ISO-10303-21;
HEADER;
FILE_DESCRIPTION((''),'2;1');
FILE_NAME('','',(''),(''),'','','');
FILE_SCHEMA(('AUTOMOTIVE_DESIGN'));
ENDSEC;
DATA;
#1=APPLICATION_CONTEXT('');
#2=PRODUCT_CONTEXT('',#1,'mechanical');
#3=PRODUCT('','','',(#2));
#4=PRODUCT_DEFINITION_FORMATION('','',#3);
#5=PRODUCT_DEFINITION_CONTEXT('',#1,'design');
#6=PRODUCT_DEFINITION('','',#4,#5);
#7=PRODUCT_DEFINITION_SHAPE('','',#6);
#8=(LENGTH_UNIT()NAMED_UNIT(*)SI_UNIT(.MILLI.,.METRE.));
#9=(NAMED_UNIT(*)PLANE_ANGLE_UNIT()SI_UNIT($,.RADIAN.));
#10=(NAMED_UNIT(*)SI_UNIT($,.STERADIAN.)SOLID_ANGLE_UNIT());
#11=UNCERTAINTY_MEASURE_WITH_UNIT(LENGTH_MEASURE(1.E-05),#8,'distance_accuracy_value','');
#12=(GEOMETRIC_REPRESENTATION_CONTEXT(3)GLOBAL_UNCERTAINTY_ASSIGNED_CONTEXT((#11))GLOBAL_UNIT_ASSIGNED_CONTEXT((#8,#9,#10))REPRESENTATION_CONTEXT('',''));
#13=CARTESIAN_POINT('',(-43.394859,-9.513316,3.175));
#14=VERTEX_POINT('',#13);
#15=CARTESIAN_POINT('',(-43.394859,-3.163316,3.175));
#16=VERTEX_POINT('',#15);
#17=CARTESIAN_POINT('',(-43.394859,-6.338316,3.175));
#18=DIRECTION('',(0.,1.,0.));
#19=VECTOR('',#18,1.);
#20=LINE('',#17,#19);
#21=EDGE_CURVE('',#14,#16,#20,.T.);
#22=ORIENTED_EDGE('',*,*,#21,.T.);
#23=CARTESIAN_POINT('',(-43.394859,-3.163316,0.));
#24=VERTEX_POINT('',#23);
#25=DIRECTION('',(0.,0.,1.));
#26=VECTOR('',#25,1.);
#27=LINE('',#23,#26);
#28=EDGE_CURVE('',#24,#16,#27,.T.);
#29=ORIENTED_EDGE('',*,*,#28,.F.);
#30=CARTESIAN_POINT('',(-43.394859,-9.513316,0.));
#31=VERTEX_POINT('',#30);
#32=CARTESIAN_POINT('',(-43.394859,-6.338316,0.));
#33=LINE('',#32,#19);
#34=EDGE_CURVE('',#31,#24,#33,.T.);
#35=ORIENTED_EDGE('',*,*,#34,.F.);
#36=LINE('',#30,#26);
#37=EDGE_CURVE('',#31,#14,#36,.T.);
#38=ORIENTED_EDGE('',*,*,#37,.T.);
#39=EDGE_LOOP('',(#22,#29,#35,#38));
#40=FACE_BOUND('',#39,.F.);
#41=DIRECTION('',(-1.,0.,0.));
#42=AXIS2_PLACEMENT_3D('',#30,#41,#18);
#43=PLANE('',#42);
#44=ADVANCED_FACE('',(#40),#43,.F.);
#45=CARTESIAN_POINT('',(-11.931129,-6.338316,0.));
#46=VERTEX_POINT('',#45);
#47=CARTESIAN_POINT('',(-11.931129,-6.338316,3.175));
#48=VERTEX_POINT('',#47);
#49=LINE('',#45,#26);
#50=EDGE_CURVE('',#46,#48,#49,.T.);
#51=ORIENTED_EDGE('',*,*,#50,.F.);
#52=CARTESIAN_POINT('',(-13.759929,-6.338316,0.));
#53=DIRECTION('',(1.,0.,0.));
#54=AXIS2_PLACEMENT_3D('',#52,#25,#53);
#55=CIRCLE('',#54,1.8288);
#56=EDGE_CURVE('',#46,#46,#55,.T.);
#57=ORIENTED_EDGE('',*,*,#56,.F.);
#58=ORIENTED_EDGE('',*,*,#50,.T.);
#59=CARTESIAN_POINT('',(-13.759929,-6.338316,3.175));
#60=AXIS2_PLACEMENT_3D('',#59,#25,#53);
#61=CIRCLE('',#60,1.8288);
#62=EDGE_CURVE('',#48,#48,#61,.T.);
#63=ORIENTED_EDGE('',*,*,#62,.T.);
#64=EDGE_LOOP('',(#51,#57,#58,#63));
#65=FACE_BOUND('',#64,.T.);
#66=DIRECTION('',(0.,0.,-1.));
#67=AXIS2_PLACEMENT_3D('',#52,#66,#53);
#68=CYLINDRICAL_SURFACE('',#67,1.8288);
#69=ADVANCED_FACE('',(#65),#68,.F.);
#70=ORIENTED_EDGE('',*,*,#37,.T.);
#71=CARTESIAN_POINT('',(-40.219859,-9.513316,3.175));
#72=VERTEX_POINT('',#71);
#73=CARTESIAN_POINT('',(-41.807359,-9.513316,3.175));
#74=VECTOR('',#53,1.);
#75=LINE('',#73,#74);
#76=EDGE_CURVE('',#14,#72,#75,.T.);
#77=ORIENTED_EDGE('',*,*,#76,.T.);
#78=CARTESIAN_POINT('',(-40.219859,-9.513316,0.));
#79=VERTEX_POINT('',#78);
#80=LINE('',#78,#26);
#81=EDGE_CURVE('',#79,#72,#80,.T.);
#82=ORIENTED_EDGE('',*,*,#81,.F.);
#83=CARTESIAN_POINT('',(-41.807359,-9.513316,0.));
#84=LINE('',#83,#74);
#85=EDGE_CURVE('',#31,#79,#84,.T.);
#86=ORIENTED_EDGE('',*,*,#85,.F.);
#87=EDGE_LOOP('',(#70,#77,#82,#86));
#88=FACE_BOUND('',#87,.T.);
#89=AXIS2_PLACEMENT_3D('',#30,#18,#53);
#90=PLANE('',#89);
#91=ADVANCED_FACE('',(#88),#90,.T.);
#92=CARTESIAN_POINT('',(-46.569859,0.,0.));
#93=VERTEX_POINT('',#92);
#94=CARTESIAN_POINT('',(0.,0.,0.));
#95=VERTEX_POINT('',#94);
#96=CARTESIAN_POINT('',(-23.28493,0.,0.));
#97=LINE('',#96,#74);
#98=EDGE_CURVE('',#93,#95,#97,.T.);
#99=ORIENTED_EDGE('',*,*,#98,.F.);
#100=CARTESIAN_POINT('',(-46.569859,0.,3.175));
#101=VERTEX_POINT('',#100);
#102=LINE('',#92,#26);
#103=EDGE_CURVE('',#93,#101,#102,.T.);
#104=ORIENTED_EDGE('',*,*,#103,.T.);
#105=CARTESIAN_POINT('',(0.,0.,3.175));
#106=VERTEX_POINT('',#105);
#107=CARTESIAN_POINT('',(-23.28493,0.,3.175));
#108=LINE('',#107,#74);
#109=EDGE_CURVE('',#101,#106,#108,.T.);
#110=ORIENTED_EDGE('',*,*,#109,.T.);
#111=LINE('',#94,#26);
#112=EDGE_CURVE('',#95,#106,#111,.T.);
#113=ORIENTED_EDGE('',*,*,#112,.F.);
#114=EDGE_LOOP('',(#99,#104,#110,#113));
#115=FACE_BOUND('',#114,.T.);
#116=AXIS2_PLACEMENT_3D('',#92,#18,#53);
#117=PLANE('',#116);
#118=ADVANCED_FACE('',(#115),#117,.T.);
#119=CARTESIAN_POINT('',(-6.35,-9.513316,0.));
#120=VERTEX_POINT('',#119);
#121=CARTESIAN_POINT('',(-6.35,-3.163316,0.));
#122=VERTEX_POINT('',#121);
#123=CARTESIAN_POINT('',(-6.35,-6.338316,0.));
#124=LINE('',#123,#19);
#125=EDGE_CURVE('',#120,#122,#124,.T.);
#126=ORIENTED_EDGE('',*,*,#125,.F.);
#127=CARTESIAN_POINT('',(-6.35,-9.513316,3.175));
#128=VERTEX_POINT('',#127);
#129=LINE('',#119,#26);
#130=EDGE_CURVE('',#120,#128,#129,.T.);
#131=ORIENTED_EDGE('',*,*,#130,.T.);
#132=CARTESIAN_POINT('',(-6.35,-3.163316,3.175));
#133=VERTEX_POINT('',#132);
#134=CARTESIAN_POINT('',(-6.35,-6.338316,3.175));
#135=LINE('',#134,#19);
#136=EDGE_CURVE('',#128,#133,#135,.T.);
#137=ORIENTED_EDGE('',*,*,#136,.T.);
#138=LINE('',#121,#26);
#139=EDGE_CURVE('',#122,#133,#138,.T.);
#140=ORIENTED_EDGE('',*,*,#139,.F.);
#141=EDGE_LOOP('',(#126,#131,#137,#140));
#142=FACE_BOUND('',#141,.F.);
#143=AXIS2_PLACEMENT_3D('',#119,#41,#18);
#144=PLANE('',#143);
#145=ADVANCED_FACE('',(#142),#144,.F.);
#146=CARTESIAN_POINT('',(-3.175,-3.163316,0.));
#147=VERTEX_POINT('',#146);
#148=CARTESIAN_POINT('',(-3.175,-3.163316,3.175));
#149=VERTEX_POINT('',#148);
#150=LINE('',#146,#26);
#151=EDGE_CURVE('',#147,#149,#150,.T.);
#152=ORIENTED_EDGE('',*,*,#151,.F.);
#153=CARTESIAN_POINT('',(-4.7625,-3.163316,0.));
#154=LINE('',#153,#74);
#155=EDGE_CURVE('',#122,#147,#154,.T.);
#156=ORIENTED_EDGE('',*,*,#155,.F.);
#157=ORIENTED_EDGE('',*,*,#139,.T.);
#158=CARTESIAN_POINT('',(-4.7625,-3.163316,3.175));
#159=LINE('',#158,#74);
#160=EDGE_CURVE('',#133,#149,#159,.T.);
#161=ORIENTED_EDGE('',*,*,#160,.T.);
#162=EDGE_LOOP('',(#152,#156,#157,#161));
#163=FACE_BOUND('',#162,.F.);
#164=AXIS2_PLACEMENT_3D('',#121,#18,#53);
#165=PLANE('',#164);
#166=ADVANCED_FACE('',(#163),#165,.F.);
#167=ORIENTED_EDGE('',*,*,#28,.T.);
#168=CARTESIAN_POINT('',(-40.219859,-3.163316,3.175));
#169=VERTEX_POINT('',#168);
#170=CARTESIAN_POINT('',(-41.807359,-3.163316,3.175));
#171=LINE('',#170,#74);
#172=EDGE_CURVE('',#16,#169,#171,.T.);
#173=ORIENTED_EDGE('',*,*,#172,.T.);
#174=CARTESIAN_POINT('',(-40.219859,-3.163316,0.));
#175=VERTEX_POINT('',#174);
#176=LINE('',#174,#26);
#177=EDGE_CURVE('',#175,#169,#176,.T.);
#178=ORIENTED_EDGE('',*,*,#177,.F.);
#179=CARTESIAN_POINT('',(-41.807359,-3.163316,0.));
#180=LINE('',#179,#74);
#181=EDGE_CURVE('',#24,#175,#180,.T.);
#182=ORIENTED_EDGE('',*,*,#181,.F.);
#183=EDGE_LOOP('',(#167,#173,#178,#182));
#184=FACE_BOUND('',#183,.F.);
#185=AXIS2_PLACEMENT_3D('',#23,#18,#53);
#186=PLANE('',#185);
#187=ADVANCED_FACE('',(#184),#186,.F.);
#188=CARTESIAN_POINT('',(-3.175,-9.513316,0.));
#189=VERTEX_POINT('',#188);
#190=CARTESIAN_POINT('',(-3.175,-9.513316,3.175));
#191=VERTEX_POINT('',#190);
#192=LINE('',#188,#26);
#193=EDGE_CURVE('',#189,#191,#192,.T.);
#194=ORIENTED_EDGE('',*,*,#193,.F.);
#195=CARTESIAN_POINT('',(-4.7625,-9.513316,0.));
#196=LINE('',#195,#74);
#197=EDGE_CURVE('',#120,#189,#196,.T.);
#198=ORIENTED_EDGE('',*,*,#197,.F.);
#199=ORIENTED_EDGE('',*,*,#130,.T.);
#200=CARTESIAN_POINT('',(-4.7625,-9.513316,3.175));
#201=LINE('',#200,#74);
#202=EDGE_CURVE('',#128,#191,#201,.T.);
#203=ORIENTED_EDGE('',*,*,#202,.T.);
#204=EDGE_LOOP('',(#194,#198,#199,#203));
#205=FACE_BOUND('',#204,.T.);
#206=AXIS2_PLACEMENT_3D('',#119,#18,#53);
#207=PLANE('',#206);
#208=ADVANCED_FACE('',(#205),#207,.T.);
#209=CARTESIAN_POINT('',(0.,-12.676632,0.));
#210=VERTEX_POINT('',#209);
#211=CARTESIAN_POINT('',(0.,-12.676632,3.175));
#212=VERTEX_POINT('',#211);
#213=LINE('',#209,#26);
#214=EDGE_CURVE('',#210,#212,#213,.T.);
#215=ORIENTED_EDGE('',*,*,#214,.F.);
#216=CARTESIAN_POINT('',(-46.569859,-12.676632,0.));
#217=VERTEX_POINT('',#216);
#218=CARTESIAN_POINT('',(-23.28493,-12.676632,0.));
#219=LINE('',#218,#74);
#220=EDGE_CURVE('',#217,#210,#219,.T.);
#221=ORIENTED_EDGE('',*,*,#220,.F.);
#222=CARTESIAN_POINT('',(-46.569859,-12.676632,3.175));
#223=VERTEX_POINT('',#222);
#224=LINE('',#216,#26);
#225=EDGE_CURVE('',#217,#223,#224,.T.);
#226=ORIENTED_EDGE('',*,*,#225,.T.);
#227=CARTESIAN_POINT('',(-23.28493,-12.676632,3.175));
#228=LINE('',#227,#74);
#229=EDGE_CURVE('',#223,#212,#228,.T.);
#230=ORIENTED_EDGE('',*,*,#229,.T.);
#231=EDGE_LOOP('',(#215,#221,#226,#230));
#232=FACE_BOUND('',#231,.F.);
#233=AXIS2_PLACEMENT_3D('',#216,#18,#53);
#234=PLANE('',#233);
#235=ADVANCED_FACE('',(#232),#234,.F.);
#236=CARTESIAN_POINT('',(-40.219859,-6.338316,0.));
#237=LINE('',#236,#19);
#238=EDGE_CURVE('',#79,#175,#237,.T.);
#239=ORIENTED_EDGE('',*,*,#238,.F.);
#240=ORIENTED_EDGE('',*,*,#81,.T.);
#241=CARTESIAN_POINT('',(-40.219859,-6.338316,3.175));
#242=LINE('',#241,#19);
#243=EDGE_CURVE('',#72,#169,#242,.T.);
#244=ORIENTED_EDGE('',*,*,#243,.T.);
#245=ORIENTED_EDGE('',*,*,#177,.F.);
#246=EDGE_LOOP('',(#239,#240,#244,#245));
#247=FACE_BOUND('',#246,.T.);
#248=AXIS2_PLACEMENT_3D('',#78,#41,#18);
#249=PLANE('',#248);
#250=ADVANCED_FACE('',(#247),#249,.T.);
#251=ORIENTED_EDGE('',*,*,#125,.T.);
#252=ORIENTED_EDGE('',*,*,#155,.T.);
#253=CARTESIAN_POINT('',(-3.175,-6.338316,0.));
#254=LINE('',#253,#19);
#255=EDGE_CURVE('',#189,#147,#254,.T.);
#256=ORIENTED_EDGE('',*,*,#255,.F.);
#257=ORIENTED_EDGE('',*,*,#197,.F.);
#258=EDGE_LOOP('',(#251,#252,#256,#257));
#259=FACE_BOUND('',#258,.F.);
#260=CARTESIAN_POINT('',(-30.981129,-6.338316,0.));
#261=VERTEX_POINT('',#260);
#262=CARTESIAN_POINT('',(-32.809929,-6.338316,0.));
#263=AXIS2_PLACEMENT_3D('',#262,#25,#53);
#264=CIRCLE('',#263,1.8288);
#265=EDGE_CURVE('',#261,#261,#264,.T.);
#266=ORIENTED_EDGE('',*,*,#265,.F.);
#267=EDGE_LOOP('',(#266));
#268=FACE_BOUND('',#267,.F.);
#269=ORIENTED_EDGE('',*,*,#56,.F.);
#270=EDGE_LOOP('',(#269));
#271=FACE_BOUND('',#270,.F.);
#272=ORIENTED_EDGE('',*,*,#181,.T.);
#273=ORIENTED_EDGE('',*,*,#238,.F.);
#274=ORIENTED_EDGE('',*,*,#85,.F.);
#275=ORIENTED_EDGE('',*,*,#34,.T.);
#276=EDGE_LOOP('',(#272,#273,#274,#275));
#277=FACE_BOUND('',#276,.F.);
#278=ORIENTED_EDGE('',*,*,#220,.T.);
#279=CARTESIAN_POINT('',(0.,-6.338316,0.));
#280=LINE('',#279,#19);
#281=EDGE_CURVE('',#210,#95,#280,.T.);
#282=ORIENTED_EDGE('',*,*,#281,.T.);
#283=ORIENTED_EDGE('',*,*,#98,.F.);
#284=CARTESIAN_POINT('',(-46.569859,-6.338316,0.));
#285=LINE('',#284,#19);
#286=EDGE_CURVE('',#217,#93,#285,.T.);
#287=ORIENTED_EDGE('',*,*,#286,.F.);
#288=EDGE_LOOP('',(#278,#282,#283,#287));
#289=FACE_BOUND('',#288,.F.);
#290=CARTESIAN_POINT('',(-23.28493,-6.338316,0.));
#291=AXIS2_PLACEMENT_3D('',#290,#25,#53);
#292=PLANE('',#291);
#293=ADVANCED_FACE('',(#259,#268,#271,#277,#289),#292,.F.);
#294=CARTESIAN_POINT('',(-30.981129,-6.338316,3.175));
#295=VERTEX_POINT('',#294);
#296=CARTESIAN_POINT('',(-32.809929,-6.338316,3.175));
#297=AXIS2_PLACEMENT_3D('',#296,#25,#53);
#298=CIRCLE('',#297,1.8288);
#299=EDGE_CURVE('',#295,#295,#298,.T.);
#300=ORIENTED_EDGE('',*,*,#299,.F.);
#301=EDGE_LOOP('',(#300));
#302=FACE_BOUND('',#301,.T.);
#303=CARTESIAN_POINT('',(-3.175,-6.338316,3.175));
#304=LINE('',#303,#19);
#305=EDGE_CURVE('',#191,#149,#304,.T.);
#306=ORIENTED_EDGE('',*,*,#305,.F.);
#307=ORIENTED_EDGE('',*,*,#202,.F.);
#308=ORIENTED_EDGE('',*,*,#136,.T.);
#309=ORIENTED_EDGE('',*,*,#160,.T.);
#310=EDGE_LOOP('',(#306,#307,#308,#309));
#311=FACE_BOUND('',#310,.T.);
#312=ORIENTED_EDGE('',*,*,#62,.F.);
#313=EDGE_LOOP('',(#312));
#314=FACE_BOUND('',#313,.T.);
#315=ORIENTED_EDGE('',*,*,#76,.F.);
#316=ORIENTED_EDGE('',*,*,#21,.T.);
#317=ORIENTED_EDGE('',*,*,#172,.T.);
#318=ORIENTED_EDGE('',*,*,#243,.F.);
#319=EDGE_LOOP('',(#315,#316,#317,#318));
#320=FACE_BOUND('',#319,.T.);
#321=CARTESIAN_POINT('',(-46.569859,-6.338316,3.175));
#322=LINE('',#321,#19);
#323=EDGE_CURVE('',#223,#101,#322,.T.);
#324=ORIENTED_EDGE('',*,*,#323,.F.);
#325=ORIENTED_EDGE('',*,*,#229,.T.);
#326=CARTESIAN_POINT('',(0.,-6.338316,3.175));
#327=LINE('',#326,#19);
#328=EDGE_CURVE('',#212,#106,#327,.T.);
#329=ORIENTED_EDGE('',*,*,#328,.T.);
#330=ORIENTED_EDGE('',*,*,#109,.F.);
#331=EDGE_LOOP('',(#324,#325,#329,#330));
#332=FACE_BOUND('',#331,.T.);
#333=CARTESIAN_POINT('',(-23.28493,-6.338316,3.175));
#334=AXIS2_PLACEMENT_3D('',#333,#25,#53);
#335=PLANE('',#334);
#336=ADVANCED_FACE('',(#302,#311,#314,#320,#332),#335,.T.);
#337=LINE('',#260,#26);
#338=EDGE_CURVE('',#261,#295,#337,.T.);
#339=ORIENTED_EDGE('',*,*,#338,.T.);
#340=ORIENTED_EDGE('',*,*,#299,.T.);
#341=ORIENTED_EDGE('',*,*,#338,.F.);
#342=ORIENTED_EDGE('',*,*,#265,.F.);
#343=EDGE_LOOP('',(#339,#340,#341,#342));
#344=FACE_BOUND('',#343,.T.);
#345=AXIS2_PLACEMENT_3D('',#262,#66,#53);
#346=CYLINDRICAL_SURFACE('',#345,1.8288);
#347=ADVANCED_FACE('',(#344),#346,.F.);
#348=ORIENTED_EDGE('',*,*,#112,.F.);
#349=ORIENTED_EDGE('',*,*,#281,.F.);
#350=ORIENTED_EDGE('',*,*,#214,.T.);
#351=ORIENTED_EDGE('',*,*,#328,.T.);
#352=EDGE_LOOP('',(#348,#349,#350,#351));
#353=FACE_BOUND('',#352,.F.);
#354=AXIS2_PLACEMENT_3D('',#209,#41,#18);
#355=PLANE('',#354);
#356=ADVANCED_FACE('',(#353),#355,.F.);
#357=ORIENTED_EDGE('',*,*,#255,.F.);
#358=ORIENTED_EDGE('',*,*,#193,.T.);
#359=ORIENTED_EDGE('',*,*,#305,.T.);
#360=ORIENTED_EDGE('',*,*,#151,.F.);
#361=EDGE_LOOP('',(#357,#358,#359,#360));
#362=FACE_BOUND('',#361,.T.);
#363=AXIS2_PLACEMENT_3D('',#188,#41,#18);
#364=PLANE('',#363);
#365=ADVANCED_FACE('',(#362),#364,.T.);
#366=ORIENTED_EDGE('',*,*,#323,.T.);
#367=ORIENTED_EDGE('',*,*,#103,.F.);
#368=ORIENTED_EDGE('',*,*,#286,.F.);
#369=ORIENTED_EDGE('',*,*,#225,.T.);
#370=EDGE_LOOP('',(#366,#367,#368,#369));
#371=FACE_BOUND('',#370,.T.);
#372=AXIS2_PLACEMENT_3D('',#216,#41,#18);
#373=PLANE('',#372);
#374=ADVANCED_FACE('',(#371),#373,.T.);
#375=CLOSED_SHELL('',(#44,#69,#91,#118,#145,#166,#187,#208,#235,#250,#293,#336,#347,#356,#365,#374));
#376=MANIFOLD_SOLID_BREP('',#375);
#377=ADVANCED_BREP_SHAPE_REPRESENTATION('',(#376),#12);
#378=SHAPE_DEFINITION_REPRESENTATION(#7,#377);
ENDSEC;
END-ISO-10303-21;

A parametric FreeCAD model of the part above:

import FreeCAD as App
import Part
import Sketcher
Q = App.Units.Quantity


def add_polygon(sketch, points):
    """Adds a closed chain of lines whose ends are joined by coincident constraints."""
    first, n = sketch.GeometryCount, len(points)
    for a, b in zip(points, points[1:] + points[:1]):
        sketch.addGeometry(Part.LineSegment(App.Vector(*a, 0), App.Vector(*b, 0)), False)
    for i in range(n):
        sketch.addConstraint(Sketcher.Constraint("Coincident", first + i, 2, first + (i + 1) % n, 1))

doc = App.newDocument("Part")
params = doc.addObject("Spreadsheet::Sheet", "Params")
for row, (alias, value) in enumerate([
    ("sketch1_diameter", "0.144 in"),
    ("sketch1_height", "0.25 in"),
    ("sketch1_width", "0.125 in"),
    ("pad1_length", "0.125 in"),
], start=1):
    params.set(f"A{row}", alias)
    params.set(f"B{row}", "=" + value)
    params.setAlias(f"B{row}", alias)

body = doc.addObject("PartDesign::Body", "Body")

sketch1 = body.newObject("Sketcher::SketchObject", "Sketch")
sketch1.AttachmentSupport = (doc.getObject("XY_Plane"), [""])
sketch1.MapMode = "FlatFace"
add_polygon(sketch1, [(-46.6, 0), (-46.6, -12.7), (0, -12.7), (0, 0)])
add_polygon(sketch1, [(-40.2, -9.5), (-43.4, -9.5), (-43.4, -3.2), (-40.2, -3.2)])
sketch1.addGeometry(Part.Circle(App.Vector(-32.8, -6.3, 0), App.Vector(0, 0, 1), 1.8), False)
sketch1.addGeometry(Part.Circle(App.Vector(-13.8, -6.3, 0), App.Vector(0, 0, 1), 1.8), False)
add_polygon(sketch1, [(-3.2, -9.5), (-6.3, -9.5), (-6.3, -3.2), (-3.2, -3.2)])
sketch1.addConstraint(Sketcher.Constraint("Vertical", 0))
sketch1.addConstraint(Sketcher.Constraint("Horizontal", 1))
sketch1.addConstraint(Sketcher.Constraint("Vertical", 2))
sketch1.addConstraint(Sketcher.Constraint("Horizontal", 3))
sketch1.addConstraint(Sketcher.Constraint("Horizontal", 4))
sketch1.addConstraint(Sketcher.Constraint("Vertical", 5))
sketch1.addConstraint(Sketcher.Constraint("Horizontal", 6))
sketch1.addConstraint(Sketcher.Constraint("Vertical", 7))
sketch1.addConstraint(Sketcher.Constraint("Horizontal", 10))
sketch1.addConstraint(Sketcher.Constraint("Vertical", 11))
sketch1.addConstraint(Sketcher.Constraint("Horizontal", 12))
sketch1.addConstraint(Sketcher.Constraint("Vertical", 13))
sketch1.addConstraint(Sketcher.Constraint("Coincident", 2, 2, -1, 1))
sketch1.addConstraint(Sketcher.Constraint("Equal", 8, 9))
sketch1.addConstraint(Sketcher.Constraint("Horizontal", 8, 3, 9, 3))
sketch1.addConstraint(Sketcher.Constraint("Horizontal", 7, 2, 10, 2))
sketch1.addConstraint(Sketcher.Constraint("Horizontal", 6, 2, 11, 2))
sketch1.addConstraint(Sketcher.Constraint("Equal", 6, 10))
sketch1.addConstraint(Sketcher.Constraint("Diameter", 8, Q("0.144 in")))
sketch1.addConstraint(Sketcher.Constraint("DistanceY", 5, 1, 5, 2, Q("0.25 in")))
sketch1.addConstraint(Sketcher.Constraint("DistanceX", 4, 2, 4, 1, Q("0.125 in")))
sketch1.addConstraint(Sketcher.Constraint("DistanceX", 10, 2, -1, 1, Q("0.25 in")))
sketch1.addConstraint(Sketcher.Constraint("DistanceX", 8, 3, 9, 3, Q("0.75 in")))
sketch1.addConstraint(Sketcher.Constraint("DistanceX", 3, 2, 6, 2, Q("0.25 in")))
sketch1.addConstraint(Sketcher.Constraint("DistanceY", 4, 2, 8, 3, Q("0.125 in")))
sketch1.addConstraint(Sketcher.Constraint("DistanceX", 1, 1, 1, 2, 46.569859))
sketch1.addConstraint(Sketcher.Constraint("DistanceY", 0, 2, 0, 1, 12.676632))
sketch1.addConstraint(Sketcher.Constraint("DistanceX", 8, 3, -1, 1, 32.809929))
sketch1.addConstraint(Sketcher.Constraint("DistanceY", 8, 3, -1, 1, 6.338316))
sketch1.setExpression("Constraints[30]", "Params.sketch1_diameter")
sketch1.setExpression("Constraints[31]", "Params.sketch1_height")
sketch1.setExpression("Constraints[32]", "Params.sketch1_width")
pad1 = body.newObject("PartDesign::Pad", "Pad")
pad1.Profile = sketch1
pad1.setExpression("Length", "Params.pad1_length")

doc.recompute()
